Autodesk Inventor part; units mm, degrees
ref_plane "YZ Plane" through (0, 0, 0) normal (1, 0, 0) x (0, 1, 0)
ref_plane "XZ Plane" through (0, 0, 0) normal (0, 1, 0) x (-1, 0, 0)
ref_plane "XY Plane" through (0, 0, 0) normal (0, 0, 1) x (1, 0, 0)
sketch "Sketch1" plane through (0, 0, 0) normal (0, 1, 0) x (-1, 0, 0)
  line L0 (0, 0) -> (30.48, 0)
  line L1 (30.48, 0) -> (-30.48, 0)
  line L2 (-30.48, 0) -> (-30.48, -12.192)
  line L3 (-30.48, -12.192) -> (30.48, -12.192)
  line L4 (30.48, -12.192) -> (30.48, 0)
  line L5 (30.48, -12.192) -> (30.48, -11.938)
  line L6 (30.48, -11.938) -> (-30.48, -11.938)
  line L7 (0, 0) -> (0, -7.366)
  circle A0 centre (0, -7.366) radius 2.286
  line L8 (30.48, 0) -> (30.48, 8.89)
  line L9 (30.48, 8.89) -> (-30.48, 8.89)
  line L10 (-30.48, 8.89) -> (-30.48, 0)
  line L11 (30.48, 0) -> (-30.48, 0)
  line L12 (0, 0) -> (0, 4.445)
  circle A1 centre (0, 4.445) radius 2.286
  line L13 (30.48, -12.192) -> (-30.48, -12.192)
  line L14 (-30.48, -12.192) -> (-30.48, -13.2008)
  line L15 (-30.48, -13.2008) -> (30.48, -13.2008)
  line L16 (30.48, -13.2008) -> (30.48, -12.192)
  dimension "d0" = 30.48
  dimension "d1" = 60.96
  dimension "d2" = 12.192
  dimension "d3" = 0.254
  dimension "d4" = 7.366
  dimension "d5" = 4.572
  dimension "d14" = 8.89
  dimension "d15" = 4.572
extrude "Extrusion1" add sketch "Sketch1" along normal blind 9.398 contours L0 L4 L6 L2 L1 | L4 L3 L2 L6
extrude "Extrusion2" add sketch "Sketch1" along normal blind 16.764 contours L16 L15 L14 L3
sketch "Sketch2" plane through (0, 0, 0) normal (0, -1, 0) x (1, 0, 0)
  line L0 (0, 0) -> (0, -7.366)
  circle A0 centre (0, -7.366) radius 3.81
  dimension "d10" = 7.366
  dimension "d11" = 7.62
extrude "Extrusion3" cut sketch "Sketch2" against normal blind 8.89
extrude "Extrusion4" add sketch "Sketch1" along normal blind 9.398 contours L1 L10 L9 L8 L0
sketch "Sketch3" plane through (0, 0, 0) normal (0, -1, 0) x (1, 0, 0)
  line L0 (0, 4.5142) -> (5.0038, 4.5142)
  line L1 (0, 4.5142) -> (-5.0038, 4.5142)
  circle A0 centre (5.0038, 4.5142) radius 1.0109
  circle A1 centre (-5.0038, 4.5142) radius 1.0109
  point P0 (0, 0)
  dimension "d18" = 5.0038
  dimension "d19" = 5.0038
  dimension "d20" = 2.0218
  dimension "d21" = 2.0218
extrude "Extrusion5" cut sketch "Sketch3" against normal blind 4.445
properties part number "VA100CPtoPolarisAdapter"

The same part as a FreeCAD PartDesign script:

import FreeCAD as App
import Part
import Sketcher
from FreeCAD import Vector
Q = App.Units.Quantity


def add_polygon(sketch, points):
    """Adds a closed chain of lines whose ends are joined by coincident constraints."""
    first, n = sketch.GeometryCount, len(points)
    for a, b in zip(points, points[1:] + points[:1]):
        sketch.addGeometry(Part.LineSegment(App.Vector(*a, 0), App.Vector(*b, 0)), False)
    for i in range(n):
        sketch.addConstraint(Sketcher.Constraint("Coincident", first + i, 2, first + (i + 1) % n, 1))

doc = App.newDocument("Part")
params = doc.addObject("Spreadsheet::Sheet", "Params")
for row, (alias, value) in enumerate([
    ("sketch1_diameter", "0.18 in"),
    ("sketch1_width", "1.2 in"),
    ("sketch1_height", "0.48 in"),
    ("pad1_length", "0.37 in"),
    ("sketch2_width", "2.4 in"),
    ("pad2_length", "0.66 in"),
    ("sketch3_diameter", "0.3 in"),
    ("pocket1_length", "0.35 in"),
    ("sketch4_diameter", "0.18 in"),
    ("sketch4_width", "1.2 in"),
    ("sketch4_height", "0.35 in"),
    ("pad3_length", "0.37 in"),
    ("pocket2_length", "0.175 in"),
], start=1):
    params.set(f"A{row}", alias)
    params.set(f"B{row}", "=" + value)
    params.setAlias(f"B{row}", alias)

body = doc.addObject("PartDesign::Body", "Body")

# Sketch on XZ plane
sketch1 = body.newObject("Sketcher::SketchObject", "Sketch")
sketch1.AttachmentSupport = (doc.getObject("XZ_Plane"), [""])
sketch1.MapMode = "FlatFace"
add_polygon(sketch1, [(-30.5, 0), (0, 0), (30.5, 0), (30.5, -12.2), (-30.5, -12.2)])  # lines 0-4
sketch1.addGeometry(Part.Circle(Vector(0, -7.4, 0), Vector(0, 0, 1), 2.3), False)  # 5
sketch1.addConstraint([
    Sketcher.Constraint("Horizontal", 0),
    Sketcher.Constraint("Horizontal", 1),
    Sketcher.Constraint("Vertical", 2),
    Sketcher.Constraint("Horizontal", 3),
    Sketcher.Constraint("Vertical", 4),
    Sketcher.Constraint("Coincident", 0, 2, -1, 1),
    Sketcher.Constraint("PointOnObject", 5, 3, -2),
    Sketcher.Constraint("Equal", 0, 1),
    Sketcher.Constraint("Diameter", 5, Q("0.18 in")),
    Sketcher.Constraint("DistanceX", 0, 1, 0, 2, Q("1.2 in")),
    Sketcher.Constraint("DistanceY", 2, 2, 2, 1, Q("0.48 in")),
    Sketcher.Constraint("DistanceY", 5, 3, -1, 1, Q("0.29 in")),
])
sketch1.setExpression("Constraints[13]", "Params.sketch1_diameter")
sketch1.setExpression("Constraints[14]", "Params.sketch1_width")
sketch1.setExpression("Constraints[15]", "Params.sketch1_height")
pad1 = body.newObject("PartDesign::Pad", "Pad")
pad1.Profile = sketch1
pad1.setExpression("Length", "Params.pad1_length")
pad1.Reversed = True

# Sketch on XZ plane
sketch2 = body.newObject("Sketcher::SketchObject", "Sketch001")
sketch2.AttachmentSupport = (doc.getObject("XZ_Plane"), [""])
sketch2.MapMode = "FlatFace"
add_polygon(sketch2, [(-30.5, -13.2), (-30.5, -12.2), (30.5, -12.2), (30.5, -13.2)])  # lines 0-3
sketch2.addConstraint([
    Sketcher.Constraint("Vertical", 0),
    Sketcher.Constraint("Horizontal", 1),
    Sketcher.Constraint("Vertical", 2),
    Sketcher.Constraint("Horizontal", 3),
    Sketcher.Constraint("DistanceX", 1, 1, 1, 2, Q("2.4 in")),
    Sketcher.Constraint("DistanceX", 0, 2, -1, 1, Q("1.2 in")),
    Sketcher.Constraint("DistanceY", 0, 2, -1, 1, Q("0.48 in")),
    Sketcher.Constraint("DistanceY", 0, 1, 0, 2, Q("1.0088 mm")),
])
sketch2.setExpression("Constraints[8]", "Params.sketch2_width")
pad2 = body.newObject("PartDesign::Pad", "Pad001")
pad2.Profile = sketch2
pad2.setExpression("Length", "Params.pad2_length")
pad2.Reversed = True

# Sketch on XZ plane
sketch3 = body.newObject("Sketcher::SketchObject", "Sketch002")
sketch3.AttachmentSupport = (doc.getObject("XZ_Plane"), [""])
sketch3.MapMode = "FlatFace"
sketch3.addGeometry(Part.Circle(Vector(0, -7.4, 0), Vector(0, 0, 1), 3.8), False)
sketch3.addConstraint([
    Sketcher.Constraint("PointOnObject", 0, 3, -2),
    Sketcher.Constraint("Diameter", 0, Q("0.3 in")),
    Sketcher.Constraint("DistanceY", 0, 3, -1, 1, Q("0.29 in")),
])
sketch3.setExpression("Constraints[1]", "Params.sketch3_diameter")
pocket1 = body.newObject("PartDesign::Pocket", "Pocket")
pocket1.Profile = sketch3
pocket1.setExpression("Length", "Params.pocket1_length")

# Sketch on XZ plane
sketch4 = body.newObject("Sketcher::SketchObject", "Sketch003")
sketch4.AttachmentSupport = (doc.getObject("XZ_Plane"), [""])
sketch4.MapMode = "FlatFace"
add_polygon(sketch4, [(30.5, 0), (0, 0), (-30.5, 0), (-30.5, 8.9), (30.5, 8.9)])  # lines 0-4
sketch4.addGeometry(Part.Circle(Vector(0, 4.4, 0), Vector(0, 0, 1), 2.3), False)  # 5
sketch4.addConstraint([
    Sketcher.Constraint("Horizontal", 0),
    Sketcher.Constraint("Horizontal", 1),
    Sketcher.Constraint("Vertical", 2),
    Sketcher.Constraint("Horizontal", 3),
    Sketcher.Constraint("Vertical", 4),
    Sketcher.Constraint("Coincident", 0, 2, -1, 1),
    Sketcher.Constraint("PointOnObject", 5, 3, -2),
    Sketcher.Constraint("Equal", 0, 1),
    Sketcher.Constraint("Diameter", 5, Q("0.18 in")),
    Sketcher.Constraint("DistanceX", 0, 2, 0, 1, Q("1.2 in")),
    Sketcher.Constraint("DistanceY", 2, 1, 2, 2, Q("0.35 in")),
    Sketcher.Constraint("DistanceY", -1, 1, 5, 3, Q("0.175 in")),
])
sketch4.setExpression("Constraints[13]", "Params.sketch4_diameter")
sketch4.setExpression("Constraints[14]", "Params.sketch4_width")
sketch4.setExpression("Constraints[15]", "Params.sketch4_height")
pad3 = body.newObject("PartDesign::Pad", "Pad002")
pad3.Profile = sketch4
pad3.setExpression("Length", "Params.pad3_length")
pad3.Reversed = True

# Sketch on XZ plane
sketch5 = body.newObject("Sketcher::SketchObject", "Sketch004")
sketch5.AttachmentSupport = (doc.getObject("XZ_Plane"), [""])
sketch5.MapMode = "FlatFace"
sketch5.addGeometry([
    Part.Circle(Vector(5, 4.5, 0), Vector(0, 0, 1), 1),
    Part.Circle(Vector(-5, 4.5, 0), Vector(0, 0, 1), 1),
], False)
sketch5.addConstraint([
    Sketcher.Constraint("Equal", 0, 1),
    Sketcher.Constraint("Symmetric", 0, 3, 1, 3, -2),
    Sketcher.Constraint("Diameter", 0, Q("0.0796 in")),
    Sketcher.Constraint("DistanceX", -1, 1, 0, 3, Q("0.197 in")),
    Sketcher.Constraint("DistanceY", -1, 1, 0, 3, Q("4.5142 mm")),
])
pocket2 = body.newObject("PartDesign::Pocket", "Pocket001")
pocket2.Profile = sketch5
pocket2.setExpression("Length", "Params.pocket2_length")

doc.recompute()
